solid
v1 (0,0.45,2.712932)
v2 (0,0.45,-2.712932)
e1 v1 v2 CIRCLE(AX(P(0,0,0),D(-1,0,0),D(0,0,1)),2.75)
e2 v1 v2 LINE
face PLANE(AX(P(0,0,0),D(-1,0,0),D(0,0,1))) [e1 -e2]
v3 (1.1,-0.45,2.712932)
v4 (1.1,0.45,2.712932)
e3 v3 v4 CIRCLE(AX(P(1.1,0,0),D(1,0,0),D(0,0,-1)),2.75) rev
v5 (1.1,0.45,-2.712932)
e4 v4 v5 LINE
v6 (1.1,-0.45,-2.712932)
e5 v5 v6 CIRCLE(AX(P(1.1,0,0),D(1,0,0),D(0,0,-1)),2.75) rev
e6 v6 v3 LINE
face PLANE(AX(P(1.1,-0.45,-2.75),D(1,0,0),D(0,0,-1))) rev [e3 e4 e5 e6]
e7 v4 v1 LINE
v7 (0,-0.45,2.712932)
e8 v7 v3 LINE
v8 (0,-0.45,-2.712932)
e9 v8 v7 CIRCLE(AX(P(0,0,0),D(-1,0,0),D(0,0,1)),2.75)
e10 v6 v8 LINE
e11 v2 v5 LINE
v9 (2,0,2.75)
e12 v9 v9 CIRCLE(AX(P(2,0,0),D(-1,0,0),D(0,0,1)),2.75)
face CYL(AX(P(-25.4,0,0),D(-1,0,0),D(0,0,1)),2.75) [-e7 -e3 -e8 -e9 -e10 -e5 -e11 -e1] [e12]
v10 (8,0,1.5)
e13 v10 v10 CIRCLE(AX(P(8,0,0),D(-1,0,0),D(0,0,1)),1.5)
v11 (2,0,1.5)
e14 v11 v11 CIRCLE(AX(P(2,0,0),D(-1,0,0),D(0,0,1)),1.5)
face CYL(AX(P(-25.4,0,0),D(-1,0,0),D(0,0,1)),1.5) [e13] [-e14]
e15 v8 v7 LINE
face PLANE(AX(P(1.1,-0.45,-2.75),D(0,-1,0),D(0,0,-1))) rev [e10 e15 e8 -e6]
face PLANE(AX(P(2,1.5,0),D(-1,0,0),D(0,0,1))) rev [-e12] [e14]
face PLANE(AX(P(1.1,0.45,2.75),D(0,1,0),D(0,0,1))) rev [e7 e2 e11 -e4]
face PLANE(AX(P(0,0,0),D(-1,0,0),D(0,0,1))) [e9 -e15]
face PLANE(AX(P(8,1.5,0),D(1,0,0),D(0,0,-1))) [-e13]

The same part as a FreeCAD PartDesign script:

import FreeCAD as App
import Part
import Sketcher


def add_polygon(sketch, points):
    """Adds a closed chain of lines whose ends are joined by coincident constraints."""
    first, n = sketch.GeometryCount, len(points)
    for a, b in zip(points, points[1:] + points[:1]):
        sketch.addGeometry(Part.LineSegment(App.Vector(*a, 0), App.Vector(*b, 0)), False)
    for i in range(n):
        sketch.addConstraint(Sketcher.Constraint("Coincident", first + i, 2, first + (i + 1) % n, 1))

doc = App.newDocument("Part")
body = doc.addObject("PartDesign::Body", "Body")

sketch1 = body.newObject("Sketcher::SketchObject", "Sketch")
sketch1.AttachmentSupport = (doc.getObject("XY_Plane"), [""])
sketch1.MapMode = "FlatFace"
add_polygon(sketch1, [(2, 1.5), (2, 2.75), (0, 2.75), (0, 0), (8, 0), (8, 1.5)])
sketch1.addConstraint([
    Sketcher.Constraint("Vertical", 0),
    Sketcher.Constraint("Horizontal", 1),
    Sketcher.Constraint("Vertical", 2),
    Sketcher.Constraint("Horizontal", 3),
    Sketcher.Constraint("Vertical", 4),
    Sketcher.Constraint("Horizontal", 5),
    Sketcher.Constraint("Coincident", 2, 2, -1, 1),
    Sketcher.Constraint("DistanceX", 1, 2, 1, 1, 2.0),
    Sketcher.Constraint("DistanceX", 3, 1, 3, 2, 8.0),
    Sketcher.Constraint("DistanceY", 4, 1, 4, 2, 1.5),
    Sketcher.Constraint("DistanceY", 0, 1, 0, 2, 1.25),
])
revolution = body.newObject("PartDesign::Revolution", "Revolution")
revolution.Profile = sketch1
revolution.ReferenceAxis = (sketch1, ["H_Axis"])
revolution.Angle = 360

sketch2 = body.newObject("Sketcher::SketchObject", "Sketch001")
sketch2.AttachmentSupport = (doc.getObject("YZ_Plane"), [""])
sketch2.MapMode = "FlatFace"
add_polygon(sketch2, [(0.45, 2.75), (-0.45, 2.75), (-0.45, -2.75), (0.45, -2.75)])
sketch2.addConstraint([
    Sketcher.Constraint("Horizontal", 0),
    Sketcher.Constraint("Vertical", 1),
    Sketcher.Constraint("Horizontal", 2),
    Sketcher.Constraint("Vertical", 3),
    Sketcher.Constraint("Symmetric", 0, 2, 2, 2, -1, 1),
    Sketcher.Constraint("DistanceX", 0, 2, 0, 1, 0.9),
    Sketcher.Constraint("DistanceY", 1, 2, 1, 1, 5.5),
])
pocket1 = body.newObject("PartDesign::Pocket", "Pocket")
pocket1.Profile = sketch2
pocket1.Length = 1.1
pocket1.Reversed = True

doc.recompute()
